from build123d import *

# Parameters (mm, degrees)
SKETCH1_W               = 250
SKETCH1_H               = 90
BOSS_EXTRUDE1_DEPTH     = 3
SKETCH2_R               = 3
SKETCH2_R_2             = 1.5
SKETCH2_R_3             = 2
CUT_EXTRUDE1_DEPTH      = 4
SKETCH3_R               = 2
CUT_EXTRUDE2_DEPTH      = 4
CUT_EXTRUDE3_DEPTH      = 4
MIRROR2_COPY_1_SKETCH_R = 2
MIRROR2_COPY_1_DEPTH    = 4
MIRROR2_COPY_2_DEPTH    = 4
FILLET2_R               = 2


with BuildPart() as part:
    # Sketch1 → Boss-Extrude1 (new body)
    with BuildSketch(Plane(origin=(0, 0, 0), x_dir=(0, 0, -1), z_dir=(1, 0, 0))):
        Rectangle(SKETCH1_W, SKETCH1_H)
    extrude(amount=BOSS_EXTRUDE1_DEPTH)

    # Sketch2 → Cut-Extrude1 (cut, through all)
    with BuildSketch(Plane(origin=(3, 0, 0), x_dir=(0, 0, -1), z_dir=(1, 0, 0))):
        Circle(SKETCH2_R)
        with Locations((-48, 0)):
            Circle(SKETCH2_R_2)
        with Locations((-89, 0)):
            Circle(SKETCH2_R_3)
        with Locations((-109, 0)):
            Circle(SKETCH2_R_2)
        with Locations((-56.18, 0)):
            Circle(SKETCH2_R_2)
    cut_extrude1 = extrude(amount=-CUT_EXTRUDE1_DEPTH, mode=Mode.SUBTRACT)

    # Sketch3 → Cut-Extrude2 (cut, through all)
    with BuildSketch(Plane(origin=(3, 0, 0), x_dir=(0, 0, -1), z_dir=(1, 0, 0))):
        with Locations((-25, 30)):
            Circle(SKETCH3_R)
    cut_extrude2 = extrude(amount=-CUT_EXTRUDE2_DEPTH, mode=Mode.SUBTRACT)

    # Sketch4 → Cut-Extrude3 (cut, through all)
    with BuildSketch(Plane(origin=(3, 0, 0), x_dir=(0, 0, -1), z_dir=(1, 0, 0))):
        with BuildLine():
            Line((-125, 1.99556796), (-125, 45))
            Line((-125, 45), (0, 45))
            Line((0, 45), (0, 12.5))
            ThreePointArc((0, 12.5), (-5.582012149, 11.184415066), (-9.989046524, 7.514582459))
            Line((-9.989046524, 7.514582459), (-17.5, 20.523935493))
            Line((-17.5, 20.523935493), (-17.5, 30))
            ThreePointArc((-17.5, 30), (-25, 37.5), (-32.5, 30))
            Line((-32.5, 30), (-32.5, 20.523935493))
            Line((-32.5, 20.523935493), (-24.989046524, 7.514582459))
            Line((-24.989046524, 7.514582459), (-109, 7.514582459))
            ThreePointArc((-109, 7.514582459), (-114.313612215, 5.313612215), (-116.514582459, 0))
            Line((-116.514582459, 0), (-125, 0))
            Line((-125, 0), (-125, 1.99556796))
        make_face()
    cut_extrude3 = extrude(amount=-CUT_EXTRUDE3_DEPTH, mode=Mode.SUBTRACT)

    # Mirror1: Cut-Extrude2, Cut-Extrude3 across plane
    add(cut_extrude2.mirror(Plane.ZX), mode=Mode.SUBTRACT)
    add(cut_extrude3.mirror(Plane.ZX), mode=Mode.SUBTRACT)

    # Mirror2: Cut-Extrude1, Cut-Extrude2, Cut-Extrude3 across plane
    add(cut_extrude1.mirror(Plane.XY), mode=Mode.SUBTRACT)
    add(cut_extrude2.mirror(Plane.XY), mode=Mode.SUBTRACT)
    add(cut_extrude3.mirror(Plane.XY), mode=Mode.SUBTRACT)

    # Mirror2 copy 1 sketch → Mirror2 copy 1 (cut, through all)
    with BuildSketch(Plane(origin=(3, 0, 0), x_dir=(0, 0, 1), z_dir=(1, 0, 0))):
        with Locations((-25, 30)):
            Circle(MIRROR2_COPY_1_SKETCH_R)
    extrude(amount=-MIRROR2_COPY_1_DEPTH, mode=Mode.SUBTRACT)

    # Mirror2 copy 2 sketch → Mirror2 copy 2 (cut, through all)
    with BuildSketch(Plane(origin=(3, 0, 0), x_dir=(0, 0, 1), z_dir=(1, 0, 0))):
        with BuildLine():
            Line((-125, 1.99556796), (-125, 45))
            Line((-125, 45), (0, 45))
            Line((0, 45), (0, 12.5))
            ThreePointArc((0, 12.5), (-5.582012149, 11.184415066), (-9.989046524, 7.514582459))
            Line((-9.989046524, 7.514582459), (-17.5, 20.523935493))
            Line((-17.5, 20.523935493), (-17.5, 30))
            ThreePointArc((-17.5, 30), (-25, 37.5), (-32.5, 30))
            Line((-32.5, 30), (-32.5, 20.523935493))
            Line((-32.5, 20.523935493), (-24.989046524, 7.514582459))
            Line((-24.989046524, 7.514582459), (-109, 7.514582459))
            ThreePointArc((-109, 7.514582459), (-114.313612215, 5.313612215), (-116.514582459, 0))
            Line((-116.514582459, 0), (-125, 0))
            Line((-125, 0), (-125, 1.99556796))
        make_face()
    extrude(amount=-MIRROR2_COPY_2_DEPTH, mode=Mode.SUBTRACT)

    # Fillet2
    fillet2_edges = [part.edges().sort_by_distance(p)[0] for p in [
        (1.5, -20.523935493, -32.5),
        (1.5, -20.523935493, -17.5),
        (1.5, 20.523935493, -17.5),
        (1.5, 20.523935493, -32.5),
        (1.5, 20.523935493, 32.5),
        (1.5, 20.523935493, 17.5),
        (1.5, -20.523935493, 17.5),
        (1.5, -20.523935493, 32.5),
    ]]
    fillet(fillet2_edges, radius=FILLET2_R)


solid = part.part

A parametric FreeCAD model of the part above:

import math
import FreeCAD as App
import Part
import Sketcher
Q = App.Units.Quantity


def edges_at(feature, points):
    """Names of the edges that pass closest to the given points."""
    edges = feature.Shape.Edges
    near = lambda p: min(range(len(edges)), key=lambda i: edges[i].distToShape(Part.Vertex(*p))[0])
    return sorted({f"Edge{near(p) + 1}" for p in points})

doc = App.newDocument("Part")
body = doc.addObject("PartDesign::Body", "Body")

# Sketch on YZ plane
sketch1 = doc.addObject("Sketcher::SketchObject", "Sketch")
body.addObject(sketch1)
sketch1.AttachmentSupport = (doc.YZ_Plane, [""])
sketch1.MapMode = "FlatFace"
sketch1.addGeometry([
    Part.LineSegment(App.Vector(45, 125, 0), App.Vector(-45, 125, 0)),
    Part.LineSegment(App.Vector(-45, 125, 0), App.Vector(-45, -125, 0)),
    Part.LineSegment(App.Vector(-45, -125, 0), App.Vector(45, -125, 0)),
    Part.LineSegment(App.Vector(45, -125, 0), App.Vector(45, 125, 0)),
], False)
sketch1.addConstraint([
    Sketcher.Constraint("Coincident", 0, 2, 1, 1),
    Sketcher.Constraint("Coincident", 1, 2, 2, 1),
    Sketcher.Constraint("Coincident", 2, 2, 3, 1),
    Sketcher.Constraint("Coincident", 3, 2, 0, 1),
    Sketcher.Constraint("Horizontal", 0),
    Sketcher.Constraint("Vertical", 1),
    Sketcher.Constraint("Horizontal", 2),
    Sketcher.Constraint("Vertical", 3),
    Sketcher.Constraint("Symmetric", 0, 2, 2, 2, -1, 1),
    Sketcher.Constraint("DistanceX", 0, 2, 0, 1, Q("90 mm")),
    Sketcher.Constraint("DistanceY", 1, 2, 1, 1, Q("250 mm")),
])
pad1 = doc.addObject("PartDesign::Pad", "Pad")
body.addObject(pad1)
pad1.Profile = sketch1
pad1.Length = 3

# Sketch on YZ plane
sketch2 = doc.addObject("Sketcher::SketchObject", "Sketch001")
body.addObject(sketch2)
sketch2.AttachmentSupport = (doc.YZ_Plane, [""])
sketch2.MapMode = "FlatFace"
sketch2.AttachmentOffset = App.Placement(App.Vector(0, 0, 3), App.Rotation())
sketch2.addGeometry([
    Part.Circle(App.Vector(0, 0, 0), App.Vector(0, 0, 1), 3),  # 0
    Part.Circle(App.Vector(0, 48, 0), App.Vector(0, 0, 1), 1.5),  # 1
    Part.Circle(App.Vector(0, 89, 0), App.Vector(0, 0, 1), 2),  # 2
    Part.Circle(App.Vector(0, 109, 0), App.Vector(0, 0, 1), 1.5),  # 3
    Part.Circle(App.Vector(0, 56.2, 0), App.Vector(0, 0, 1), 1.5),  # 4
], False)
sketch2.addConstraint([
    Sketcher.Constraint("Coincident", 0, 3, -1, 1),
    Sketcher.Constraint("Equal", 1, 3),
    Sketcher.Constraint("Equal", 3, 4),
    Sketcher.Constraint("PointOnObject", 1, 3, -2),
    Sketcher.Constraint("PointOnObject", 2, 3, -2),
    Sketcher.Constraint("PointOnObject", 3, 3, -2),
    Sketcher.Constraint("PointOnObject", 4, 3, -2),
    Sketcher.Constraint("Diameter", 0, Q("6 mm")),
    Sketcher.Constraint("Diameter", 1, Q("3 mm")),
    Sketcher.Constraint("Diameter", 2, Q("4 mm")),
    Sketcher.Constraint("DistanceY", -1, 1, 1, 3, Q("48 mm")),
    Sketcher.Constraint("DistanceY", -1, 1, 2, 3, Q("89 mm")),
    Sketcher.Constraint("DistanceY", -1, 1, 3, 3, Q("109 mm")),
    Sketcher.Constraint("DistanceY", -1, 1, 4, 3, Q("56.18 mm")),
])
pocket1 = doc.addObject("PartDesign::Pocket", "Pocket")
body.addObject(pocket1)
pocket1.Profile = sketch2
pocket1.Type = "ThroughAll"

# Sketch on YZ plane
sketch3 = doc.addObject("Sketcher::SketchObject", "Sketch002")
body.addObject(sketch3)
sketch3.AttachmentSupport = (doc.YZ_Plane, [""])
sketch3.MapMode = "FlatFace"
sketch3.AttachmentOffset = App.Placement(App.Vector(0, 0, 3), App.Rotation())
sketch3.addGeometry(Part.Circle(App.Vector(30, 25, 0), App.Vector(0, 0, 1), 2), False)
sketch3.addConstraint([
    Sketcher.Constraint("Diameter", 0, Q("4 mm")),
    Sketcher.Constraint("DistanceX", -1, 1, 0, 3, Q("30 mm")),
    Sketcher.Constraint("DistanceY", -1, 1, 0, 3, Q("25 mm")),
])
pocket2 = doc.addObject("PartDesign::Pocket", "Pocket001")
body.addObject(pocket2)
pocket2.Profile = sketch3
pocket2.Type = "ThroughAll"

# Sketch on YZ plane
sketch4 = doc.addObject("Sketcher::SketchObject", "Sketch003")
body.addObject(sketch4)
sketch4.AttachmentSupport = (doc.YZ_Plane, [""])
sketch4.MapMode = "FlatFace"
sketch4.AttachmentOffset = App.Placement(App.Vector(0, 0, 3), App.Rotation())
sketch4.addGeometry([
    Part.LineSegment(App.Vector(45, 0, 0), App.Vector(45, 125, 0)),  # 0
    Part.LineSegment(App.Vector(45, 125, 0), App.Vector(0, 125, 0)),  # 1
    Part.LineSegment(App.Vector(0, 125, 0), App.Vector(0, 117, 0)),  # 2
    Part.ArcOfCircle(Part.Circle(App.Vector(0, 109, 0), App.Vector(0, 0, 1), 8), math.radians(0), math.radians(90)),  # 3
    Part.LineSegment(App.Vector(8, 109, 0), App.Vector(8, 25, 0)),  # 4
    Part.LineSegment(App.Vector(8, 25, 0), App.Vector(21, 32, 0)),  # 5
    Part.LineSegment(App.Vector(21, 32, 0), App.Vector(30, 32, 0)),  # 6
    Part.ArcOfCircle(Part.Circle(App.Vector(30, 25, 0), App.Vector(0, 0, 1), 8), math.radians(-90), math.radians(90)),  # 7
    Part.LineSegment(App.Vector(30, 18, 0), App.Vector(21, 18, 0)),  # 8
    Part.LineSegment(App.Vector(21, 18, 0), App.Vector(8, 10, 0)),  # 9
    Part.ArcOfCircle(Part.Circle(App.Vector(0, 0, 0), App.Vector(0, 0, 1), 12), math.radians(0), math.radians(53)),  # 10
    Part.LineSegment(App.Vector(12, 0, 0), App.Vector(45, 0, 0)),  # 11
], False)
sketch4.addConstraint([
    Sketcher.Constraint("Coincident", 0, 2, 1, 1),
    Sketcher.Constraint("Coincident", 1, 2, 2, 1),
    Sketcher.Constraint("Coincident", 2, 2, 3, 2),
    Sketcher.Constraint("Tangent", 3, 1, 4, 1),
    Sketcher.Constraint("Coincident", 4, 2, 5, 1),
    Sketcher.Constraint("Coincident", 5, 2, 6, 1),
    Sketcher.Constraint("Tangent", 6, 2, 7, 2),
    Sketcher.Constraint("Tangent", 7, 1, 8, 1),
    Sketcher.Constraint("Coincident", 8, 2, 9, 1),
    Sketcher.Constraint("Coincident", 9, 2, 10, 2),
    Sketcher.Constraint("Coincident", 10, 1, 11, 1),
    Sketcher.Constraint("Coincident", 11, 2, 0, 1),
    Sketcher.Constraint("Vertical", 0),
    Sketcher.Constraint("Horizontal", 1),
    Sketcher.Constraint("Vertical", 2),
    Sketcher.Constraint("Vertical", 4),
    Sketcher.Constraint("Horizontal", 6),
    Sketcher.Constraint("Horizontal", 8),
    Sketcher.Constraint("Horizontal", 11),
    Sketcher.Constraint("Coincident", 10, 3, -1, 1),
    Sketcher.Constraint("PointOnObject", 3, 3, -2),
    Sketcher.Constraint("PointOnObject", 1, 2, -2),
    Sketcher.Constraint("PointOnObject", 10, 1, -1),
    Sketcher.Constraint("Parallel", 5, 9),
    Sketcher.Constraint("Vertical", 5, 2, 8, 2),
    Sketcher.Constraint("Vertical", 4, 2, 9, 2),
    Sketcher.Constraint("Radius", 7, Q("7.5 mm")),
    Sketcher.Constraint("Radius", 10, Q("12.5 mm")),
    Sketcher.Constraint("DistanceX", 1, 2, 1, 1, Q("45 mm")),
    Sketcher.Constraint("DistanceY", 0, 1, 0, 2, Q("125 mm")),
    Sketcher.Constraint("Angle", 5, Q("30 deg")),
    Sketcher.Constraint("DistanceY", -1, 1, 3, 3, Q("109 mm")),
    Sketcher.Constraint("DistanceX", -1, 1, 7, 3, Q("30 mm")),
    Sketcher.Constraint("DistanceY", -1, 1, 7, 3, Q("25 mm")),
    Sketcher.Constraint("Radius", 3, Q("7.514582 mm")),
])
pocket3 = doc.addObject("PartDesign::Pocket", "Pocket002")
body.addObject(pocket3)
pocket3.Profile = sketch4
pocket3.Type = "ThroughAll"
doc.recompute()

mirrored = doc.addObject("PartDesign::Mirrored", "Mirrored")
body.addObject(mirrored)
mirrored.Originals = [pocket2, pocket3]
mirrored.MirrorPlane = (doc.XZ_Plane, [""])
body.Tip = mirrored
doc.recompute()

mirrored2 = doc.addObject("PartDesign::Mirrored", "Mirrored001")
body.addObject(mirrored2)
mirrored2.Originals = [pocket1, pocket2, pocket3]
mirrored2.MirrorPlane = (doc.XY_Plane, [""])
body.Tip = mirrored2

# Sketch on YZ plane
sketch5 = doc.addObject("Sketcher::SketchObject", "Sketch004")
body.addObject(sketch5)
sketch5.AttachmentSupport = (doc.YZ_Plane, [""])
sketch5.MapMode = "FlatFace"
sketch5.AttachmentOffset = App.Placement(App.Vector(0, 0, 3), App.Rotation())
sketch5.addGeometry(Part.Circle(App.Vector(-30, -25, 0), App.Vector(0, 0, 1), 2), False)
sketch5.addConstraint([
    Sketcher.Constraint("Diameter", 0, Q("4 mm")),
    Sketcher.Constraint("DistanceX", 0, 3, -1, 1, Q("30 mm")),
    Sketcher.Constraint("DistanceY", 0, 3, -1, 1, Q("25 mm")),
])
pocket4 = doc.addObject("PartDesign::Pocket", "Pocket003")
body.addObject(pocket4)
pocket4.Profile = sketch5
pocket4.Type = "ThroughAll"

# Sketch on YZ plane
sketch6 = doc.addObject("Sketcher::SketchObject", "Sketch005")
body.addObject(sketch6)
sketch6.AttachmentSupport = (doc.YZ_Plane, [""])
sketch6.MapMode = "FlatFace"
sketch6.AttachmentOffset = App.Placement(App.Vector(0, 0, 3), App.Rotation())
sketch6.addGeometry([
    Part.LineSegment(App.Vector(-45, 0, 0), App.Vector(-45, -125, 0)),  # 0
    Part.LineSegment(App.Vector(-45, -125, 0), App.Vector(0, -125, 0)),  # 1
    Part.LineSegment(App.Vector(0, -125, 0), App.Vector(0, -117, 0)),  # 2
    Part.ArcOfCircle(Part.Circle(App.Vector(0, -109, 0), App.Vector(0, 0, 1), 8), math.radians(180), math.radians(270)),  # 3
    Part.LineSegment(App.Vector(-8, -109, 0), App.Vector(-8, -25, 0)),  # 4
    Part.LineSegment(App.Vector(-8, -25, 0), App.Vector(-21, -32, 0)),  # 5
    Part.LineSegment(App.Vector(-21, -32, 0), App.Vector(-30, -32, 0)),  # 6
    Part.ArcOfCircle(Part.Circle(App.Vector(-30, -25, 0), App.Vector(0, 0, 1), 8), math.radians(90), math.radians(270)),  # 7
    Part.LineSegment(App.Vector(-30, -18, 0), App.Vector(-21, -18, 0)),  # 8
    Part.LineSegment(App.Vector(-21, -18, 0), App.Vector(-8, -10, 0)),  # 9
    Part.ArcOfCircle(Part.Circle(App.Vector(0, 0, 0), App.Vector(0, 0, 1), 12), math.radians(180), math.radians(233)),  # 10
    Part.LineSegment(App.Vector(-12, 0, 0), App.Vector(-45, 0, 0)),  # 11
], False)
sketch6.addConstraint([
    Sketcher.Constraint("Coincident", 0, 2, 1, 1),
    Sketcher.Constraint("Coincident", 1, 2, 2, 1),
    Sketcher.Constraint("Coincident", 2, 2, 3, 2),
    Sketcher.Constraint("Tangent", 3, 1, 4, 1),
    Sketcher.Constraint("Coincident", 4, 2, 5, 1),
    Sketcher.Constraint("Coincident", 5, 2, 6, 1),
    Sketcher.Constraint("Tangent", 6, 2, 7, 2),
    Sketcher.Constraint("Tangent", 7, 1, 8, 1),
    Sketcher.Constraint("Coincident", 8, 2, 9, 1),
    Sketcher.Constraint("Coincident", 9, 2, 10, 2),
    Sketcher.Constraint("Coincident", 10, 1, 11, 1),
    Sketcher.Constraint("Coincident", 11, 2, 0, 1),
    Sketcher.Constraint("Vertical", 0),
    Sketcher.Constraint("Horizontal", 1),
    Sketcher.Constraint("Vertical", 2),
    Sketcher.Constraint("Vertical", 4),
    Sketcher.Constraint("Horizontal", 6),
    Sketcher.Constraint("Horizontal", 8),
    Sketcher.Constraint("Horizontal", 11),
    Sketcher.Constraint("Coincident", 10, 3, -1, 1),
    Sketcher.Constraint("PointOnObject", 3, 3, -2),
    Sketcher.Constraint("PointOnObject", 1, 2, -2),
    Sketcher.Constraint("PointOnObject", 10, 1, -1),
    Sketcher.Constraint("Parallel", 5, 9),
    Sketcher.Constraint("Vertical", 5, 2, 8, 2),
    Sketcher.Constraint("Vertical", 4, 2, 9, 2),
    Sketcher.Constraint("Radius", 7, Q("7.5 mm")),
    Sketcher.Constraint("Radius", 10, Q("12.5 mm")),
    Sketcher.Constraint("DistanceX", 1, 1, 1, 2, Q("45 mm")),
    Sketcher.Constraint("DistanceY", 0, 2, 0, 1, Q("125 mm")),
    Sketcher.Constraint("Angle", 5, Q("-150 deg")),
    Sketcher.Constraint("DistanceY", 3, 3, -1, 1, Q("109 mm")),
    Sketcher.Constraint("DistanceX", 7, 3, -1, 1, Q("30 mm")),
    Sketcher.Constraint("DistanceY", 7, 3, -1, 1, Q("25 mm")),
    Sketcher.Constraint("Radius", 3, Q("7.514582 mm")),
])
pocket5 = doc.addObject("PartDesign::Pocket", "Pocket004")
body.addObject(pocket5)
pocket5.Profile = sketch6
pocket5.Type = "ThroughAll"
doc.recompute()

fillet = doc.addObject("PartDesign::Fillet", "Fillet")
body.addObject(fillet)
fillet.Base = (pocket5, edges_at(pocket5, [
    (1.5, -20.524, -32.5),
    (1.5, -20.524, -17.5),
    (1.5, 20.524, -17.5),
    (1.5, 20.524, -32.5),
    (1.5, 20.524, 32.5),
    (1.5, 20.524, 17.5),
    (1.5, -20.524, 17.5),
    (1.5, -20.524, 32.5),
]))
fillet.Radius = 2

doc.recompute()
